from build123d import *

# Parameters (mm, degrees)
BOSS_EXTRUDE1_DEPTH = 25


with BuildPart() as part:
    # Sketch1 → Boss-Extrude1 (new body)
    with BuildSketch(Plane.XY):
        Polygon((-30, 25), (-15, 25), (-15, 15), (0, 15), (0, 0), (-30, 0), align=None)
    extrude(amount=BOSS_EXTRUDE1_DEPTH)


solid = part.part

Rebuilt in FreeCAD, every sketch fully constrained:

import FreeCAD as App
import Part
import Sketcher
from FreeCAD import Vector
Q = App.Units.Quantity


def add_polygon(sketch, points):
    """Adds a closed chain of lines whose ends are joined by coincident constraints."""
    first, n = sketch.GeometryCount, len(points)
    for a, b in zip(points, points[1:] + points[:1]):
        sketch.addGeometry(Part.LineSegment(App.Vector(*a, 0), App.Vector(*b, 0)), False)
    for i in range(n):
        sketch.addConstraint(Sketcher.Constraint("Coincident", first + i, 2, first + (i + 1) % n, 1))

doc = App.newDocument("Part")
body = doc.addObject("PartDesign::Body", "Body")

# Sketch on XY plane
sketch1 = doc.addObject("Sketcher::SketchObject", "Sketch")
body.addObject(sketch1)
sketch1.AttachmentSupport = (doc.XY_Plane, [""])
sketch1.MapMode = "FlatFace"
add_polygon(sketch1, [(-15, 25), (-30, 25), (-30, 0), (0, 0), (0, 15), (-15, 15)])  # lines 0-5
sketch1.addConstraint([
    Sketcher.Constraint("Horizontal", 0),
    Sketcher.Constraint("Vertical", 1),
    Sketcher.Constraint("Horizontal", 2),
    Sketcher.Constraint("Vertical", 3),
    Sketcher.Constraint("Horizontal", 4),
    Sketcher.Constraint("Vertical", 5),
    Sketcher.Constraint("Coincident", 2, 2, -1, 1),
    Sketcher.Constraint("Equal", 0, 4),
    Sketcher.Constraint("Equal", 4, 3),
    Sketcher.Constraint("DistanceX", 0, 2, 0, 1, Q("15 mm")),
    Sketcher.Constraint("DistanceY", 1, 2, 1, 1, Q("25 mm")),
])
pad1 = doc.addObject("PartDesign::Pad", "Pad")
body.addObject(pad1)
pad1.Profile = sketch1
pad1.Length = 25

doc.recompute()
